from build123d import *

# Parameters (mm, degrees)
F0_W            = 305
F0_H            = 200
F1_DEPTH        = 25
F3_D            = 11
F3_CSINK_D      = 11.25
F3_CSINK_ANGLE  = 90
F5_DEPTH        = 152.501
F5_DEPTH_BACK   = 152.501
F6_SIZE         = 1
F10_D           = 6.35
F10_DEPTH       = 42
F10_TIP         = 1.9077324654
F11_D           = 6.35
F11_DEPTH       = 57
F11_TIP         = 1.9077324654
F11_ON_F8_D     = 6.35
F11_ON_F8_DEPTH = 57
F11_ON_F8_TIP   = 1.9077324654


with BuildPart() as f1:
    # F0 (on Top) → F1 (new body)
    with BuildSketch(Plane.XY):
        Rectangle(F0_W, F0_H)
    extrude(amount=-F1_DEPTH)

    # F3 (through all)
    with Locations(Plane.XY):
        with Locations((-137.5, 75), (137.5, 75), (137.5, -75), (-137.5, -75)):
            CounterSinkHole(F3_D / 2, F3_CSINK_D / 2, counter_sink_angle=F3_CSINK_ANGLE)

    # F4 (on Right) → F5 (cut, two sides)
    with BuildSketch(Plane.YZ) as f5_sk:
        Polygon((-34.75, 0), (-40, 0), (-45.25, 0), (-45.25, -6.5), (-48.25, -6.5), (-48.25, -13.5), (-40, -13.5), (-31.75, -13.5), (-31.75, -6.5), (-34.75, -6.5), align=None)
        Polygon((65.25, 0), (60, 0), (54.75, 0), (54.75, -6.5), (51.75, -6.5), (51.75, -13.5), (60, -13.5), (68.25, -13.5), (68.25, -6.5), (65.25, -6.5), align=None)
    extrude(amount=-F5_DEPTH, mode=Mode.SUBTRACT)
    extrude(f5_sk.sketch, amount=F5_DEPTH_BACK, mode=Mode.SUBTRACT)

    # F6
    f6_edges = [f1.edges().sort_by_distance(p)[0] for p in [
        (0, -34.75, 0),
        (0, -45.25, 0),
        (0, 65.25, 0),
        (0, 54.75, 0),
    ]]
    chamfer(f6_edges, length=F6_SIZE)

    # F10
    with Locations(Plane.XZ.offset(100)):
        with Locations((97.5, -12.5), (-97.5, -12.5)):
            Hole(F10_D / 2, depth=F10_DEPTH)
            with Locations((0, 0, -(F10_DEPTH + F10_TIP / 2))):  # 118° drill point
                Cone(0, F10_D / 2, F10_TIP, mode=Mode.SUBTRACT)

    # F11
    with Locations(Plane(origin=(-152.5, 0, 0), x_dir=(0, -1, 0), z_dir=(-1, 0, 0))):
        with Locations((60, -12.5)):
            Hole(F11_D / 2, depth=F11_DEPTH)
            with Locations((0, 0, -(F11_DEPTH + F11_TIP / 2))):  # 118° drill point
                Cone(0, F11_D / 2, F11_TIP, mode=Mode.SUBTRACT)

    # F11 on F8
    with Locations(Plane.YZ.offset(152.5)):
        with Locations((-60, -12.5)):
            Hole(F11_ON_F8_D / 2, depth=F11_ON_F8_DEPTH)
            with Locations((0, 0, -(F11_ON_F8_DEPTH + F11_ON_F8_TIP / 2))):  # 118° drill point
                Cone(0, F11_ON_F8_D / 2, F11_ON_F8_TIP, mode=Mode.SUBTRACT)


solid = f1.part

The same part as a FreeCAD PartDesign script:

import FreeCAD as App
import Part
import Sketcher
from FreeCAD import Vector
Q = App.Units.Quantity


def edges_at(feature, points):
    """Names of the edges that pass closest to the given points."""
    edges = feature.Shape.Edges
    near = lambda p: min(range(len(edges)), key=lambda i: edges[i].distToShape(Part.Vertex(*p))[0])
    return sorted({f"Edge{near(p) + 1}" for p in points})


def add_polygon(sketch, points):
    """Adds a closed chain of lines whose ends are joined by coincident constraints."""
    first, n = sketch.GeometryCount, len(points)
    for a, b in zip(points, points[1:] + points[:1]):
        sketch.addGeometry(Part.LineSegment(App.Vector(*a, 0), App.Vector(*b, 0)), False)
    for i in range(n):
        sketch.addConstraint(Sketcher.Constraint("Coincident", first + i, 2, first + (i + 1) % n, 1))

doc = App.newDocument("Part")
body = doc.addObject("PartDesign::Body", "Body")

# Sketch on XY plane
sketch1 = body.newObject("Sketcher::SketchObject", "Sketch")
sketch1.AttachmentSupport = (doc.getObject("XY_Plane"), [""])
sketch1.MapMode = "FlatFace"
add_polygon(sketch1, [(-152.5, 100), (-152.5, -100), (152.5, -100), (152.5, 100)])  # lines 0-3
sketch1.addConstraint([
    Sketcher.Constraint("Vertical", 0),
    Sketcher.Constraint("Horizontal", 1),
    Sketcher.Constraint("Vertical", 2),
    Sketcher.Constraint("Horizontal", 3),
    Sketcher.Constraint("Symmetric", 0, 2, 2, 2, -1, 1),
    Sketcher.Constraint("DistanceX", 1, 1, 1, 2, Q("305 mm")),
    Sketcher.Constraint("DistanceY", 0, 2, 0, 1, Q("200 mm")),
])
pad1 = body.newObject("PartDesign::Pad", "Pad")
pad1.Profile = sketch1
pad1.Length = 25
pad1.Reversed = True

# Sketch on XY plane
sketch2 = body.newObject("Sketcher::SketchObject", "Sketch001")
sketch2.AttachmentSupport = (doc.getObject("XY_Plane"), [""])
sketch2.MapMode = "FlatFace"
sketch2.addGeometry([
    Part.Circle(Vector(-137.5, 75, 0), Vector(0, 0, 1), 5.5),
    Part.Circle(Vector(137.5, 75, 0), Vector(0, 0, 1), 5.5),
    Part.Circle(Vector(137.5, -75, 0), Vector(0, 0, 1), 5.5),
    Part.Circle(Vector(-137.5, -75, 0), Vector(0, 0, 1), 5.5),
], False)
sketch2.addConstraint([
    Sketcher.Constraint("Equal", 0, 1),
    Sketcher.Constraint("Equal", 1, 2),
    Sketcher.Constraint("Equal", 2, 3),
    Sketcher.Constraint("Symmetric", 0, 3, 2, 3, -1, 1),
    Sketcher.Constraint("Symmetric", 1, 3, 3, 3, -1, 1),
    Sketcher.Constraint("Symmetric", 0, 3, 1, 3, -2),
    Sketcher.Constraint("Diameter", 0, Q("11 mm")),
    Sketcher.Constraint("DistanceY", -1, 1, 0, 3, Q("75 mm")),
    Sketcher.Constraint("DistanceX", 0, 3, 1, 3, Q("275 mm")),
])
doc.recompute()
hole = body.newObject("PartDesign::Hole", "Hole")
hole.Profile = sketch2
hole.ThreadType = "None"
hole.Diameter = 11
hole.DepthType = "ThroughAll"
hole.HoleCutType = "Countersink"
hole.HoleCutDiameter = 11.25
hole.HoleCutCountersinkAngle = 90

# Sketch on YZ plane
sketch3 = body.newObject("Sketcher::SketchObject", "Sketch002")
sketch3.AttachmentSupport = (doc.getObject("YZ_Plane"), [""])
sketch3.MapMode = "FlatFace"
add_polygon(sketch3, [(-34.75, 0), (-45.25, 0), (-45.25, -6.5), (-48.25, -6.5), (-48.25, -13.5), (-31.75, -13.5), (-31.75, -6.5), (-34.75, -6.5)])  # lines 0-7
add_polygon(sketch3, [(65.25, 0), (54.75, 0), (54.75, -6.5), (51.75, -6.5), (51.75, -13.5), (68.25, -13.5), (68.25, -6.5), (65.25, -6.5)])  # lines 8-15
sketch3.addConstraint([
    Sketcher.Constraint("Horizontal", 0),
    Sketcher.Constraint("Vertical", 1),
    Sketcher.Constraint("Horizontal", 2),
    Sketcher.Constraint("Vertical", 3),
    Sketcher.Constraint("Horizontal", 4),
    Sketcher.Constraint("Vertical", 5),
    Sketcher.Constraint("Horizontal", 6),
    Sketcher.Constraint("Vertical", 7),
    Sketcher.Constraint("Horizontal", 8),
    Sketcher.Constraint("Vertical", 9),
    Sketcher.Constraint("Horizontal", 10),
    Sketcher.Constraint("Vertical", 11),
    Sketcher.Constraint("Horizontal", 12),
    Sketcher.Constraint("Vertical", 13),
    Sketcher.Constraint("Horizontal", 14),
    Sketcher.Constraint("Vertical", 15),
    Sketcher.Constraint("PointOnObject", 0, 2, -1),
    Sketcher.Constraint("PointOnObject", 8, 2, -1),
    Sketcher.Constraint("Horizontal", 2, 2, 5, 2),
    Sketcher.Constraint("Horizontal", 6, 2, 9, 2),
    Sketcher.Constraint("Horizontal", 4, 2, 11, 2),
    Sketcher.Constraint("Horizontal", 10, 2, 13, 2),
    Sketcher.Constraint("Equal", 2, 6),
    Sketcher.Constraint("Equal", 0, 8),
    Sketcher.Constraint("Equal", 6, 10),
    Sketcher.Constraint("Equal", 4, 12),
    Sketcher.Constraint("DistanceX", 2, 2, 2, 1, Q("3 mm")),
    Sketcher.Constraint("DistanceY", 3, 2, 3, 1, Q("7 mm")),
    Sketcher.Constraint("DistanceX", 0, 2, 0, 1, Q("10.5 mm")),
    Sketcher.Constraint("DistanceY", 1, 2, 1, 1, Q("6.5 mm")),
    Sketcher.Constraint("DistanceX", 0, 2, 8, 2, Q("100 mm")),
    Sketcher.Constraint("DistanceX", 0, 2, -1, 1, Q("45.25 mm")),
])
pocket1 = body.newObject("PartDesign::Pocket", "Pocket")
pocket1.Profile = sketch3
pocket1.Type = "ThroughAll"
pocket1.Midplane = True
doc.recompute()

chamfer = body.newObject("PartDesign::Chamfer", "Chamfer")
chamfer.Base = (pocket1, edges_at(pocket1, [
    (0, -34.75, 0),
    (0, -45.25, 0),
    (0, 65.25, 0),
    (0, 54.75, 0),
]))
chamfer.Size = 1

# Sketch on XZ plane
sketch4 = body.newObject("Sketcher::SketchObject", "Sketch003")
sketch4.AttachmentSupport = (doc.getObject("XZ_Plane"), [""])
sketch4.MapMode = "FlatFace"
sketch4.AttachmentOffset = App.Placement(Vector(0, 0, 100), App.Rotation())
sketch4.addGeometry([
    Part.Circle(Vector(97.5, -12.5, 0), Vector(0, 0, 1), 3.175),
    Part.Circle(Vector(-97.5, -12.5, 0), Vector(0, 0, 1), 3.175),
], False)
sketch4.addConstraint([
    Sketcher.Constraint("Equal", 0, 1),
    Sketcher.Constraint("Symmetric", 0, 3, 1, 3, -2),
    Sketcher.Constraint("Diameter", 0, Q("6.35 mm")),
    Sketcher.Constraint("DistanceX", 1, 3, 0, 3, Q("195 mm")),
    Sketcher.Constraint("DistanceY", 0, 3, -1, 1, Q("12.5 mm")),
])
doc.recompute()
hole2 = body.newObject("PartDesign::Hole", "Hole001")
hole2.Profile = sketch4
hole2.ThreadType = "None"
hole2.Diameter = 6.35
hole2.DepthType = "Dimension"
hole2.Depth = 42
hole2.DrillPoint = "Angled"
hole2.DrillPointAngle = 118

# Sketch on YZ plane
sketch5 = body.newObject("Sketcher::SketchObject", "Sketch004")
sketch5.AttachmentSupport = (doc.getObject("YZ_Plane"), [""])
sketch5.MapMode = "FlatFace"
sketch5.AttachmentOffset = App.Placement(Vector(0, 0, -152.5), App.Rotation())
sketch5.addGeometry(Part.Circle(Vector(-60, -12.5, 0), Vector(0, 0, 1), 3.175), False)
sketch5.addConstraint([
    Sketcher.Constraint("Diameter", 0, Q("6.35 mm")),
    Sketcher.Constraint("DistanceX", 0, 3, -1, 1, Q("60 mm")),
    Sketcher.Constraint("DistanceY", 0, 3, -1, 1, Q("12.5 mm")),
])
doc.recompute()
hole3 = body.newObject("PartDesign::Hole", "Hole002")
hole3.Profile = sketch5
hole3.ThreadType = "None"
hole3.Diameter = 6.35
hole3.DepthType = "Dimension"
hole3.Depth = 57
hole3.DrillPoint = "Angled"
hole3.DrillPointAngle = 118
hole3.Reversed = True

# Sketch on YZ plane
sketch6 = body.newObject("Sketcher::SketchObject", "Sketch005")
sketch6.AttachmentSupport = (doc.getObject("YZ_Plane"), [""])
sketch6.MapMode = "FlatFace"
sketch6.AttachmentOffset = App.Placement(Vector(0, 0, 152.5), App.Rotation())
sketch6.addGeometry(Part.Circle(Vector(-60, -12.5, 0), Vector(0, 0, 1), 3.175), False)
sketch6.addConstraint([
    Sketcher.Constraint("Diameter", 0, Q("6.35 mm")),
    Sketcher.Constraint("DistanceX", 0, 3, -1, 1, Q("60 mm")),
    Sketcher.Constraint("DistanceY", 0, 3, -1, 1, Q("12.5 mm")),
])
doc.recompute()
hole4 = body.newObject("PartDesign::Hole", "Hole003")
hole4.Profile = sketch6
hole4.ThreadType = "None"
hole4.Diameter = 6.35
hole4.DepthType = "Dimension"
hole4.Depth = 57
hole4.DrillPoint = "Angled"
hole4.DrillPointAngle = 118

doc.recompute()
